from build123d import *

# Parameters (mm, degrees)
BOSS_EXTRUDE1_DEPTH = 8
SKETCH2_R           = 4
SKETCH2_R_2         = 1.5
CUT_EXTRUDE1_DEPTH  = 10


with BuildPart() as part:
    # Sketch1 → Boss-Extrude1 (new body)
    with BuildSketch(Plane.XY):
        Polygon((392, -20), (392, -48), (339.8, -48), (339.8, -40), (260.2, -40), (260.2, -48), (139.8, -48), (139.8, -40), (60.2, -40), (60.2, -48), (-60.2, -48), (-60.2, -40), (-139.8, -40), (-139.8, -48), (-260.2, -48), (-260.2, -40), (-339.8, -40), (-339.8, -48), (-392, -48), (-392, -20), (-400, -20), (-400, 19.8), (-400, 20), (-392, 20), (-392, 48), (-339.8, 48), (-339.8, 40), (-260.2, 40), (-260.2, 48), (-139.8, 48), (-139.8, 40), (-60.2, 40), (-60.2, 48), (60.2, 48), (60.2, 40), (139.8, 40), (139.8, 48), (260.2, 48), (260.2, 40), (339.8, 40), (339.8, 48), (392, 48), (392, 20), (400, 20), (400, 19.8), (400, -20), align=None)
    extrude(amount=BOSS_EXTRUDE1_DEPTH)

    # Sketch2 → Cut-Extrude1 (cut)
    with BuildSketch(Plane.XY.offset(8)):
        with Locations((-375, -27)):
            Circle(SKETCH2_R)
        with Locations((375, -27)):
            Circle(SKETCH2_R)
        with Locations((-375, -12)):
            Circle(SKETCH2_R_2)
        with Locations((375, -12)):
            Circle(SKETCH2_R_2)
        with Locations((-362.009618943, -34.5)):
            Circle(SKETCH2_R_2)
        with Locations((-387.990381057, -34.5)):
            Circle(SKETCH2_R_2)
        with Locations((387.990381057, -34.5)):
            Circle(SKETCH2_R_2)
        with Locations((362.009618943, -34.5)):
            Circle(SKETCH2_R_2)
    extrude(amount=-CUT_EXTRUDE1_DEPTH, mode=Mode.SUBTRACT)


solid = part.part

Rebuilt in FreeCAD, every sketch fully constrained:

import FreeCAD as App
import Part
import Sketcher
Q = App.Units.Quantity

doc = App.newDocument("Part")
body = doc.addObject("PartDesign::Body", "Body")

sketch1 = body.newObject("Sketcher::SketchObject", "Sketch")
sketch1.AttachmentSupport = (doc.getObject("XY_Plane"), [""])
sketch1.MapMode = "FlatFace"
sketch1.addGeometry([
    Part.LineSegment(App.Vector(392, -48, 0), App.Vector(392, -20, 0)),
    Part.LineSegment(App.Vector(392, -20, 0), App.Vector(400, -20, 0)),
    Part.LineSegment(App.Vector(400, -20, 0), App.Vector(400, 20, 0)),
    Part.LineSegment(App.Vector(400, 20, 0), App.Vector(392, 20, 0)),
    Part.LineSegment(App.Vector(392, 20, 0), App.Vector(392, 48, 0)),
    Part.LineSegment(App.Vector(392, 48, 0), App.Vector(340, 48, 0)),
    Part.LineSegment(App.Vector(340, 48, 0), App.Vector(340, 40, 0)),
    Part.LineSegment(App.Vector(340, 40, 0), App.Vector(260, 40, 0)),
    Part.LineSegment(App.Vector(260, 40, 0), App.Vector(260, 48, 0)),
    Part.LineSegment(App.Vector(260, 48, 0), App.Vector(140, 48, 0)),
    Part.LineSegment(App.Vector(140, 48, 0), App.Vector(140, 40, 0)),
    Part.LineSegment(App.Vector(140, 40, 0), App.Vector(60, 40, 0)),
    Part.LineSegment(App.Vector(60, 40, 0), App.Vector(60, 48, 0)),
    Part.LineSegment(App.Vector(60, 48, 0), App.Vector(-60, 48, 0)),
    Part.LineSegment(App.Vector(-60, 48, 0), App.Vector(-60, 40, 0)),
    Part.LineSegment(App.Vector(-60, 40, 0), App.Vector(-140, 40, 0)),
    Part.LineSegment(App.Vector(-140, 40, 0), App.Vector(-140, 48, 0)),
    Part.LineSegment(App.Vector(-140, 48, 0), App.Vector(-260, 48, 0)),
    Part.LineSegment(App.Vector(-260, 48, 0), App.Vector(-260, 40, 0)),
    Part.LineSegment(App.Vector(-260, 40, 0), App.Vector(-340, 40, 0)),
    Part.LineSegment(App.Vector(-340, 40, 0), App.Vector(-340, 48, 0)),
    Part.LineSegment(App.Vector(-340, 48, 0), App.Vector(-392, 48, 0)),
    Part.LineSegment(App.Vector(-392, 48, 0), App.Vector(-392, 20, 0)),
    Part.LineSegment(App.Vector(-392, 20, 0), App.Vector(-400, 20, 0)),
    Part.LineSegment(App.Vector(-400, 20, 0), App.Vector(-400, -20, 0)),
    Part.LineSegment(App.Vector(-400, -20, 0), App.Vector(-392, -20, 0)),
    Part.LineSegment(App.Vector(-392, -20, 0), App.Vector(-392, -48, 0)),
    Part.LineSegment(App.Vector(-392, -48, 0), App.Vector(-340, -48, 0)),
    Part.LineSegment(App.Vector(-340, -48, 0), App.Vector(-340, -40, 0)),
    Part.LineSegment(App.Vector(-340, -40, 0), App.Vector(-260, -40, 0)),
    Part.LineSegment(App.Vector(-260, -40, 0), App.Vector(-260, -48, 0)),
    Part.LineSegment(App.Vector(-260, -48, 0), App.Vector(-140, -48, 0)),
    Part.LineSegment(App.Vector(-140, -48, 0), App.Vector(-140, -40, 0)),
    Part.LineSegment(App.Vector(-140, -40, 0), App.Vector(-60, -40, 0)),
    Part.LineSegment(App.Vector(-60, -40, 0), App.Vector(-60, -48, 0)),
    Part.LineSegment(App.Vector(-60, -48, 0), App.Vector(60, -48, 0)),
    Part.LineSegment(App.Vector(60, -48, 0), App.Vector(60, -40, 0)),
    Part.LineSegment(App.Vector(60, -40, 0), App.Vector(140, -40, 0)),
    Part.LineSegment(App.Vector(140, -40, 0), App.Vector(140, -48, 0)),
    Part.LineSegment(App.Vector(140, -48, 0), App.Vector(260, -48, 0)),
    Part.LineSegment(App.Vector(260, -48, 0), App.Vector(260, -40, 0)),
    Part.LineSegment(App.Vector(260, -40, 0), App.Vector(340, -40, 0)),
    Part.LineSegment(App.Vector(340, -40, 0), App.Vector(340, -48, 0)),
    Part.LineSegment(App.Vector(340, -48, 0), App.Vector(392, -48, 0)),
], False)
sketch1.addConstraint([
    Sketcher.Constraint("Coincident", 0, 2, 1, 1),
    Sketcher.Constraint("Coincident", 1, 2, 2, 1),
    Sketcher.Constraint("Coincident", 2, 2, 3, 1),
    Sketcher.Constraint("Coincident", 3, 2, 4, 1),
    Sketcher.Constraint("Coincident", 4, 2, 5, 1),
    Sketcher.Constraint("Coincident", 5, 2, 6, 1),
    Sketcher.Constraint("Coincident", 6, 2, 7, 1),
    Sketcher.Constraint("Coincident", 7, 2, 8, 1),
    Sketcher.Constraint("Coincident", 8, 2, 9, 1),
    Sketcher.Constraint("Coincident", 9, 2, 10, 1),
    Sketcher.Constraint("Coincident", 10, 2, 11, 1),
    Sketcher.Constraint("Coincident", 11, 2, 12, 1),
    Sketcher.Constraint("Coincident", 12, 2, 13, 1),
    Sketcher.Constraint("Coincident", 13, 2, 14, 1),
    Sketcher.Constraint("Coincident", 14, 2, 15, 1),
    Sketcher.Constraint("Coincident", 15, 2, 16, 1),
    Sketcher.Constraint("Coincident", 16, 2, 17, 1),
    Sketcher.Constraint("Coincident", 17, 2, 18, 1),
    Sketcher.Constraint("Coincident", 18, 2, 19, 1),
    Sketcher.Constraint("Coincident", 19, 2, 20, 1),
    Sketcher.Constraint("Coincident", 20, 2, 21, 1),
    Sketcher.Constraint("Coincident", 21, 2, 22, 1),
    Sketcher.Constraint("Coincident", 22, 2, 23, 1),
    Sketcher.Constraint("Coincident", 23, 2, 24, 1),
    Sketcher.Constraint("Coincident", 24, 2, 25, 1),
    Sketcher.Constraint("Coincident", 25, 2, 26, 1),
    Sketcher.Constraint("Coincident", 26, 2, 27, 1),
    Sketcher.Constraint("Coincident", 27, 2, 28, 1),
    Sketcher.Constraint("Coincident", 28, 2, 29, 1),
    Sketcher.Constraint("Coincident", 29, 2, 30, 1),
    Sketcher.Constraint("Coincident", 30, 2, 31, 1),
    Sketcher.Constraint("Coincident", 31, 2, 32, 1),
    Sketcher.Constraint("Coincident", 32, 2, 33, 1),
    Sketcher.Constraint("Coincident", 33, 2, 34, 1),
    Sketcher.Constraint("Coincident", 34, 2, 35, 1),
    Sketcher.Constraint("Coincident", 35, 2, 36, 1),
    Sketcher.Constraint("Coincident", 36, 2, 37, 1),
    Sketcher.Constraint("Coincident", 37, 2, 38, 1),
    Sketcher.Constraint("Coincident", 38, 2, 39, 1),
    Sketcher.Constraint("Coincident", 39, 2, 40, 1),
    Sketcher.Constraint("Coincident", 40, 2, 41, 1),
    Sketcher.Constraint("Coincident", 41, 2, 42, 1),
    Sketcher.Constraint("Coincident", 42, 2, 43, 1),
    Sketcher.Constraint("Coincident", 43, 2, 0, 1),
    Sketcher.Constraint("Vertical", 0),
    Sketcher.Constraint("Horizontal", 1),
    Sketcher.Constraint("Vertical", 2),
    Sketcher.Constraint("Horizontal", 3),
    Sketcher.Constraint("Vertical", 4),
    Sketcher.Constraint("Horizontal", 5),
    Sketcher.Constraint("Vertical", 6),
    Sketcher.Constraint("Horizontal", 7),
    Sketcher.Constraint("Vertical", 8),
    Sketcher.Constraint("Horizontal", 9),
    Sketcher.Constraint("Vertical", 10),
    Sketcher.Constraint("Horizontal", 11),
    Sketcher.Constraint("Vertical", 12),
    Sketcher.Constraint("Horizontal", 13),
    Sketcher.Constraint("Vertical", 14),
    Sketcher.Constraint("Horizontal", 15),
    Sketcher.Constraint("Vertical", 16),
    Sketcher.Constraint("Horizontal", 17),
    Sketcher.Constraint("Vertical", 18),
    Sketcher.Constraint("Horizontal", 19),
    Sketcher.Constraint("Vertical", 20),
    Sketcher.Constraint("Horizontal", 21),
    Sketcher.Constraint("Vertical", 22),
    Sketcher.Constraint("Horizontal", 23),
    Sketcher.Constraint("Vertical", 24),
    Sketcher.Constraint("Horizontal", 25),
    Sketcher.Constraint("Vertical", 26),
    Sketcher.Constraint("Horizontal", 27),
    Sketcher.Constraint("Vertical", 28),
    Sketcher.Constraint("Horizontal", 29),
    Sketcher.Constraint("Vertical", 30),
    Sketcher.Constraint("Horizontal", 31),
    Sketcher.Constraint("Vertical", 32),
    Sketcher.Constraint("Horizontal", 33),
    Sketcher.Constraint("Vertical", 34),
    Sketcher.Constraint("Horizontal", 35),
    Sketcher.Constraint("Vertical", 36),
    Sketcher.Constraint("Horizontal", 37),
    Sketcher.Constraint("Vertical", 38),
    Sketcher.Constraint("Horizontal", 39),
    Sketcher.Constraint("Vertical", 40),
    Sketcher.Constraint("Horizontal", 41),
    Sketcher.Constraint("Vertical", 42),
    Sketcher.Constraint("Horizontal", 43),
    Sketcher.Constraint("Symmetric", 0, 2, 22, 2, -1, 1),
    Sketcher.Constraint("Symmetric", 2, 2, 24, 2, -1, 1),
    Sketcher.Constraint("Symmetric", 4, 2, 26, 2, -1, 1),
    Sketcher.Constraint("Symmetric", 6, 2, 28, 2, -1, 1),
    Sketcher.Constraint("Symmetric", 8, 2, 30, 2, -1, 1),
    Sketcher.Constraint("Symmetric", 10, 2, 32, 2, -1, 1),
    Sketcher.Constraint("Symmetric", 12, 2, 34, 2, -1, 1),
    Sketcher.Constraint("Symmetric", 14, 2, 36, 2, -1, 1),
    Sketcher.Constraint("Symmetric", 16, 2, 38, 2, -1, 1),
    Sketcher.Constraint("Symmetric", 18, 2, 40, 2, -1, 1),
    Sketcher.Constraint("Symmetric", 20, 2, 42, 2, -1, 1),
    Sketcher.Constraint("Symmetric", 11, 2, 14, 2, -2),
    Sketcher.Constraint("Symmetric", 9, 2, 16, 2, -2),
    Sketcher.Constraint("Symmetric", 7, 2, 18, 2, -2),
    Sketcher.Constraint("Symmetric", 5, 2, 20, 2, -2),
    Sketcher.Constraint("Symmetric", 3, 2, 22, 2, -2),
    Sketcher.Constraint("Horizontal", 5, 2, 8, 2),
    Sketcher.Constraint("Horizontal", 7, 2, 10, 2),
    Sketcher.Constraint("Horizontal", 9, 2, 12, 2),
    Sketcher.Constraint("Equal", 7, 11),
    Sketcher.Constraint("Equal", 9, 13),
    Sketcher.Constraint("Equal", 25, 6),
    Sketcher.Constraint("DistanceX", 1, 1, 1, 2, Q("8 mm")),
    Sketcher.Constraint("DistanceY", 0, 1, 0, 2, Q("28 mm")),
    Sketcher.Constraint("DistanceY", 2, 1, 2, 2, Q("40 mm")),
    Sketcher.Constraint("DistanceX", 5, 2, 5, 1, Q("52.2 mm")),
    Sketcher.Constraint("DistanceX", 7, 2, 7, 1, Q("79.6 mm")),
    Sketcher.Constraint("DistanceX", 9, 2, 9, 1, Q("120.4 mm")),
])
pad1 = body.newObject("PartDesign::Pad", "Pad")
pad1.Profile = sketch1
pad1.Length = 8

sketch2 = body.newObject("Sketcher::SketchObject", "Sketch001")
sketch2.AttachmentSupport = (doc.getObject("XY_Plane"), [""])
sketch2.MapMode = "FlatFace"
sketch2.AttachmentOffset = App.Placement(App.Vector(0, 0, 8), App.Rotation())
sketch2.addGeometry([
    Part.Circle(App.Vector(-375, -27, 0), App.Vector(0, 0, 1), 4),
    Part.Circle(App.Vector(375, -27, 0), App.Vector(0, 0, 1), 4),
    Part.Circle(App.Vector(-375, -12, 0), App.Vector(0, 0, 1), 1.5),
    Part.Circle(App.Vector(375, -12, 0), App.Vector(0, 0, 1), 1.5),
    Part.Circle(App.Vector(-362, -34.5, 0), App.Vector(0, 0, 1), 1.5),
    Part.Circle(App.Vector(-388, -34.5, 0), App.Vector(0, 0, 1), 1.5),
    Part.Circle(App.Vector(388, -34.5, 0), App.Vector(0, 0, 1), 1.5),
    Part.Circle(App.Vector(362, -34.5, 0), App.Vector(0, 0, 1), 1.5),
], False)
sketch2.addConstraint([
    Sketcher.Constraint("Equal", 0, 1),
    Sketcher.Constraint("Equal", 2, 3),
    Sketcher.Constraint("Equal", 3, 4),
    Sketcher.Constraint("Equal", 4, 5),
    Sketcher.Constraint("Equal", 5, 6),
    Sketcher.Constraint("Equal", 6, 7),
    Sketcher.Constraint("Symmetric", 0, 3, 1, 3, -2),
    Sketcher.Constraint("Symmetric", 2, 3, 3, 3, -2),
    Sketcher.Constraint("Symmetric", 5, 3, 6, 3, -2),
    Sketcher.Constraint("Symmetric", 4, 3, 7, 3, -2),
    Sketcher.Constraint("Horizontal", 4, 3, 5, 3),
    Sketcher.Constraint("Vertical", 0, 3, 2, 3),
    Sketcher.Constraint("Diameter", 0, Q("8 mm")),
    Sketcher.Constraint("Diameter", 2, Q("3 mm")),
    Sketcher.Constraint("DistanceX", 0, 3, -1, 1, Q("375 mm")),
    Sketcher.Constraint("DistanceY", 0, 3, -1, 1, Q("27 mm")),
    Sketcher.Constraint("DistanceY", 2, 3, -1, 1, Q("12 mm")),
    Sketcher.Constraint("DistanceX", 4, 3, 6, 3, Q("750 mm")),
    Sketcher.Constraint("DistanceY", 4, 3, -1, 1, Q("34.5 mm")),
    Sketcher.Constraint("DistanceX", 4, 3, -1, 1, Q("362.009619 mm")),
])
pocket1 = body.newObject("PartDesign::Pocket", "Pocket")
pocket1.Profile = sketch2
pocket1.Length = 10

doc.recompute()
